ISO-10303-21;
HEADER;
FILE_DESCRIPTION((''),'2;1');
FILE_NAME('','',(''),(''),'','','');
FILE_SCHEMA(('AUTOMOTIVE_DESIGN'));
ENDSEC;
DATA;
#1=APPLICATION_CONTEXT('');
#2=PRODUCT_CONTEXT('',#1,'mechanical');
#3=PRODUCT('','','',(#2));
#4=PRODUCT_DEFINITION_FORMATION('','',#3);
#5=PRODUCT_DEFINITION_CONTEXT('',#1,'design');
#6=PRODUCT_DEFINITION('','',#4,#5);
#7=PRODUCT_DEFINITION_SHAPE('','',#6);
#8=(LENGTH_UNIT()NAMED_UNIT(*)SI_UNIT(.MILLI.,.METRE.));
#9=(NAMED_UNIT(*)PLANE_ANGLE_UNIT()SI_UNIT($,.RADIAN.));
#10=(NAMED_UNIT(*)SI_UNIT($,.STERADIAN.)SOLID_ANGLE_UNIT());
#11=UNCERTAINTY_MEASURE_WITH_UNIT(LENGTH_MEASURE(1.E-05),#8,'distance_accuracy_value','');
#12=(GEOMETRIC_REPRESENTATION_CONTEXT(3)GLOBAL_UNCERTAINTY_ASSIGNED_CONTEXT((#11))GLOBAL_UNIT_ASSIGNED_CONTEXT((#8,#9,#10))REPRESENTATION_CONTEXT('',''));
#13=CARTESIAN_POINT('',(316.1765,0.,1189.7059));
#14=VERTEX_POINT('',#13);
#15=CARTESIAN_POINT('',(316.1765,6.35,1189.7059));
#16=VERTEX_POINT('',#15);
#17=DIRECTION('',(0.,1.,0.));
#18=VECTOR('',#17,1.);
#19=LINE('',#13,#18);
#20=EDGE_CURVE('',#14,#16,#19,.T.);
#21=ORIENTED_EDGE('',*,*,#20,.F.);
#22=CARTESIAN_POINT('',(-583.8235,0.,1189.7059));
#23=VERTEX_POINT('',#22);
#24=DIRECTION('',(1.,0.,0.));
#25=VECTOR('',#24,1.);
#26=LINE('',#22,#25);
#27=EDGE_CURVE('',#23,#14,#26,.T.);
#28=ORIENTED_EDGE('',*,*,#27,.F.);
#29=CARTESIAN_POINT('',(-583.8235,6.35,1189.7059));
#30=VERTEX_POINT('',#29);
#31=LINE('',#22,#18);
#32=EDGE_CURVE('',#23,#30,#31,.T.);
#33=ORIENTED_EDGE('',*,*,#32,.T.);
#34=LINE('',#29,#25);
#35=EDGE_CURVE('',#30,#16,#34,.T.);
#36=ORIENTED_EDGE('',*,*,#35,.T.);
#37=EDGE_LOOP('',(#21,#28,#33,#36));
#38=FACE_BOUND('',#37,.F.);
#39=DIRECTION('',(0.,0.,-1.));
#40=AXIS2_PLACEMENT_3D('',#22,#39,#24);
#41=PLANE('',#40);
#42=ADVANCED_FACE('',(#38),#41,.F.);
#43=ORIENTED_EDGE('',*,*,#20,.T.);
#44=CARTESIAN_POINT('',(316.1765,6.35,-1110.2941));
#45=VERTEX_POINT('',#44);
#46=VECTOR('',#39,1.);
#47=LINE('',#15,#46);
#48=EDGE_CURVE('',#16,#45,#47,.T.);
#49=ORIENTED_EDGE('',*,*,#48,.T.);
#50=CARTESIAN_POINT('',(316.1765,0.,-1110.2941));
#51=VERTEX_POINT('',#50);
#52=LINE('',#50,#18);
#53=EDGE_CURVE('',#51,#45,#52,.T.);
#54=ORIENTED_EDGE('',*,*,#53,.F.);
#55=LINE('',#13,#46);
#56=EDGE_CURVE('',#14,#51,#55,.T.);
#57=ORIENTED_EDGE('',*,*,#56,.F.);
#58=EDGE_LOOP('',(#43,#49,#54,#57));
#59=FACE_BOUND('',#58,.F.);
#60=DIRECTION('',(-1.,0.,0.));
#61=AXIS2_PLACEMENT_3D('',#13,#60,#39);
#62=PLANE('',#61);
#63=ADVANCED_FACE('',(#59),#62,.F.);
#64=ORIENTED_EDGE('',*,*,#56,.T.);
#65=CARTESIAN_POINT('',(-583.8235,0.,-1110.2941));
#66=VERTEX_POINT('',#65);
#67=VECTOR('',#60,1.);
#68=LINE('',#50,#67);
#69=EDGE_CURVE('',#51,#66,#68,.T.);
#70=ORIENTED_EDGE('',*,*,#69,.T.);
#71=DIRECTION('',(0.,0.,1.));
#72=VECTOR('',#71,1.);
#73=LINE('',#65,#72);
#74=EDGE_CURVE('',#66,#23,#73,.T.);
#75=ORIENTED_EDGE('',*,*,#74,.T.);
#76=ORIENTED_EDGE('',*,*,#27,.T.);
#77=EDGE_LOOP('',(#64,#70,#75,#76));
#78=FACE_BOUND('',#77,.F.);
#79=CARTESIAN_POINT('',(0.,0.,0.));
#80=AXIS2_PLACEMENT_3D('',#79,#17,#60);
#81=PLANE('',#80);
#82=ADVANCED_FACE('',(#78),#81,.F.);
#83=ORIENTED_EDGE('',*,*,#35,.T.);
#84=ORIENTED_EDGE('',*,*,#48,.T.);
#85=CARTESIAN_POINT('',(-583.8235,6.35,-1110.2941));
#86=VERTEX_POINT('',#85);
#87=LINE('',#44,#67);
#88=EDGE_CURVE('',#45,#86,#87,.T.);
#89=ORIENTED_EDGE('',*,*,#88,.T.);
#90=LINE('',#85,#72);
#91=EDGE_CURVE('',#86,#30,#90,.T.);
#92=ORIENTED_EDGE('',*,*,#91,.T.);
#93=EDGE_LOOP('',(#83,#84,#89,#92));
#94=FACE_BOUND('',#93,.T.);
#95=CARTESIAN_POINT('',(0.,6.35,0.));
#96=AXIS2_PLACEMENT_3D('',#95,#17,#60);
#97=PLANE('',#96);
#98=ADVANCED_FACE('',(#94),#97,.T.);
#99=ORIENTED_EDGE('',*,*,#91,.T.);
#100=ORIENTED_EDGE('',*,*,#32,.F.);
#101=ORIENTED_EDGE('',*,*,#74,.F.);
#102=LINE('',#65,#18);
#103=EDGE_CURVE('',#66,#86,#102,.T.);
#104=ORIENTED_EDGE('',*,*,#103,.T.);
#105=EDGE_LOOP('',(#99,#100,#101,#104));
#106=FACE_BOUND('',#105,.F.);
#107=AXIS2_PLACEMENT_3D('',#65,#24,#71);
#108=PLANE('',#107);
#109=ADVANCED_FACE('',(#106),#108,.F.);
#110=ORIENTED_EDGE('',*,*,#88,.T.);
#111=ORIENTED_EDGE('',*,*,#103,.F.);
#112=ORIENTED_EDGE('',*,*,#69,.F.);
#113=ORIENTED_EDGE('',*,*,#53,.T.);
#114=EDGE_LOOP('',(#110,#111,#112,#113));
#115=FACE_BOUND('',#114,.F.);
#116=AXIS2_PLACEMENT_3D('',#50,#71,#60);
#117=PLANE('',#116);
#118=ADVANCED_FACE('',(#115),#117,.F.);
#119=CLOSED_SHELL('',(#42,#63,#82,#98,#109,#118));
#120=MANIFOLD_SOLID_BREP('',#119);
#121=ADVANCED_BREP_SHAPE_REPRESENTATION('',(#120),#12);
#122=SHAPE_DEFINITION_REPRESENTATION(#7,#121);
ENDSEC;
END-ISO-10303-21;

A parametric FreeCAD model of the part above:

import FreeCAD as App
import Part
import Sketcher

V = App.Vector
Q = App.Units.Quantity


def add_polygon(sketch, points):
    """Adds a closed chain of lines whose ends are joined by coincident constraints."""
    first, n = sketch.GeometryCount, len(points)
    for a, b in zip(points, points[1:] + points[:1]):
        sketch.addGeometry(Part.LineSegment(App.Vector(*a, 0), App.Vector(*b, 0)), False)
    for i in range(n):
        sketch.addConstraint(Sketcher.Constraint("Coincident", first + i, 2, first + (i + 1) % n, 1))

doc = App.newDocument("Part")
body = doc.addObject("PartDesign::Body", "Body")

# Sketch on XZ plane
sketch1 = doc.addObject("Sketcher::SketchObject", "Sketch")
body.addObject(sketch1)
sketch1.AttachmentSupport = (doc.XZ_Plane, [""])
sketch1.MapMode = "FlatFace"
add_polygon(sketch1, [(-584, -1110), (-584, 1190), (316, 1190), (316, -1110)])  # lines 0-3
sketch1.addConstraint(Sketcher.Constraint("Vertical", 0))
sketch1.addConstraint(Sketcher.Constraint("Horizontal", 1))
sketch1.addConstraint(Sketcher.Constraint("Vertical", 2))
sketch1.addConstraint(Sketcher.Constraint("Horizontal", 3))
sketch1.addConstraint(Sketcher.Constraint("DistanceX", 1, 1, 1, 2, Q("900 mm")))
sketch1.addConstraint(Sketcher.Constraint("DistanceY", 0, 1, 0, 2, Q("2300 mm")))
sketch1.addConstraint(Sketcher.Constraint("DistanceY", -1, 1, 0, 2, Q("1189.706 mm")))
sketch1.addConstraint(Sketcher.Constraint("DistanceX", 0, 2, -1, 1, Q("583.8235 mm")))
pad1 = doc.addObject("PartDesign::Pad", "Pad")
body.addObject(pad1)
pad1.Profile = sketch1
pad1.Length = 6.35
pad1.Reversed = True

doc.recompute()
